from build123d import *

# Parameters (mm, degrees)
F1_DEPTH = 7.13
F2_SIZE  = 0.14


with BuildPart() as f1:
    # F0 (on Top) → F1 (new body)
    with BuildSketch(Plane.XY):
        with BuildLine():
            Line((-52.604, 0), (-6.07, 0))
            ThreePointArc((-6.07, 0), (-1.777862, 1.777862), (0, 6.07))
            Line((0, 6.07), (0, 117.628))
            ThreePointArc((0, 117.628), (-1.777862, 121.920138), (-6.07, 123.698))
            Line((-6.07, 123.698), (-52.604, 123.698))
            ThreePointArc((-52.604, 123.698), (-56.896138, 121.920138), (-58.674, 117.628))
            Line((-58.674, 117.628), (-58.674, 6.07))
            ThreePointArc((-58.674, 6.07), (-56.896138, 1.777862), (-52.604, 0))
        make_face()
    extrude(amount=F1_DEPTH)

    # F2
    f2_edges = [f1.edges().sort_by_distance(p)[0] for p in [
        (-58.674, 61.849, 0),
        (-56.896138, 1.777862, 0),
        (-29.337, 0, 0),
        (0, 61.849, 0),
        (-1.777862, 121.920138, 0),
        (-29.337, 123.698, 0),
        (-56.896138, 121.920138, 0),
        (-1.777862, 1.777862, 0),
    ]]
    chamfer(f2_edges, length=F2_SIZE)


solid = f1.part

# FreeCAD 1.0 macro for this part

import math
import FreeCAD as App
import Part
import Sketcher
from FreeCAD import Vector
Q = App.Units.Quantity


def edges_at(feature, points):
    """Names of the edges that pass closest to the given points."""
    edges = feature.Shape.Edges
    near = lambda p: min(range(len(edges)), key=lambda i: edges[i].distToShape(Part.Vertex(*p))[0])
    return sorted({f"Edge{near(p) + 1}" for p in points})

doc = App.newDocument("Part")
params = doc.addObject("Spreadsheet::Sheet", "Params")
for row, (alias, value) in enumerate([
    ("sketch1_radius", "6.070001 mm"),
    ("pad1_length", "7.13 mm"),
    ("chamfer_size", "0.14 mm"),
], start=1):
    params.set(f"A{row}", alias)
    params.set(f"B{row}", "=" + value)
    params.setAlias(f"B{row}", alias)

body = doc.addObject("PartDesign::Body", "Body")

sketch1 = body.newObject("Sketcher::SketchObject", "Sketch")
sketch1.AttachmentSupport = (doc.getObject("XY_Plane"), [""])
sketch1.MapMode = "FlatFace"
sketch1.addGeometry(Part.LineSegment(Vector(-53, 0, 0), Vector(-6, 0, 0)), False)
sketch1.addGeometry(Part.ArcOfCircle(Part.Circle(Vector(-6, 6, 0), Vector(0, 0, 1), 6), math.radians(-90), math.radians(0)), False)
sketch1.addGeometry(Part.LineSegment(Vector(0, 6, 0), Vector(0, 118, 0)), False)
sketch1.addGeometry(Part.ArcOfCircle(Part.Circle(Vector(-6, 118, 0), Vector(0, 0, 1), 6), math.radians(0), math.radians(90)), False)
sketch1.addGeometry(Part.LineSegment(Vector(-6, 124, 0), Vector(-53, 124, 0)), False)
sketch1.addGeometry(Part.ArcOfCircle(Part.Circle(Vector(-53, 118, 0), Vector(0, 0, 1), 6), math.radians(90), math.radians(180)), False)
sketch1.addGeometry(Part.LineSegment(Vector(-59, 118, 0), Vector(-59, 6, 0)), False)
sketch1.addGeometry(Part.ArcOfCircle(Part.Circle(Vector(-53, 6, 0), Vector(0, 0, 1), 6), math.radians(-180), math.radians(-90)), False)
sketch1.addConstraint(Sketcher.Constraint("Tangent", 0, 2, 1, 1))
sketch1.addConstraint(Sketcher.Constraint("Tangent", 1, 2, 2, 1))
sketch1.addConstraint(Sketcher.Constraint("Tangent", 2, 2, 3, 1))
sketch1.addConstraint(Sketcher.Constraint("Tangent", 3, 2, 4, 1))
sketch1.addConstraint(Sketcher.Constraint("Tangent", 4, 2, 5, 1))
sketch1.addConstraint(Sketcher.Constraint("Tangent", 5, 2, 6, 1))
sketch1.addConstraint(Sketcher.Constraint("Tangent", 6, 2, 7, 1))
sketch1.addConstraint(Sketcher.Constraint("Tangent", 7, 2, 0, 1))
sketch1.addConstraint(Sketcher.Constraint("Horizontal", 0))
sketch1.addConstraint(Sketcher.Constraint("Vertical", 2))
sketch1.addConstraint(Sketcher.Constraint("Horizontal", 4))
sketch1.addConstraint(Sketcher.Constraint("Vertical", 6))
sketch1.addConstraint(Sketcher.Constraint("Equal", 1, 3))
sketch1.addConstraint(Sketcher.Constraint("Equal", 3, 5))
sketch1.addConstraint(Sketcher.Constraint("Equal", 5, 7))
sketch1.addConstraint(Sketcher.Constraint("PointOnObject", 0, 2, -1))
sketch1.addConstraint(Sketcher.Constraint("PointOnObject", 1, 2, -2))
sketch1.addConstraint(Sketcher.Constraint("Radius", 1, Q("6.070001 mm")))
sketch1.addConstraint(Sketcher.Constraint("DistanceX", 0, 1, 0, 2, Q("46.534 mm")))
sketch1.addConstraint(Sketcher.Constraint("DistanceY", 2, 1, 2, 2, Q("111.558 mm")))
sketch1.setExpression("Constraints[17]", "Params.sketch1_radius")
pad1 = body.newObject("PartDesign::Pad", "Pad")
pad1.Profile = sketch1
pad1.setExpression("Length", "Params.pad1_length")
doc.recompute()

chamfer = body.newObject("PartDesign::Chamfer", "Chamfer")
chamfer.Base = (pad1, edges_at(pad1, [
    (-58.674, 61.849, 0),
    (-56.896, 1.778, 0),
    (-29.337, 0, 0),
    (0, 61.849, 0),
    (-1.778, 121.92, 0),
    (-29.337, 123.698, 0),
    (-56.896, 121.92, 0),
    (-1.778, 1.778, 0),
]))
chamfer.setExpression("Size", "Params.chamfer_size")

doc.recompute()
